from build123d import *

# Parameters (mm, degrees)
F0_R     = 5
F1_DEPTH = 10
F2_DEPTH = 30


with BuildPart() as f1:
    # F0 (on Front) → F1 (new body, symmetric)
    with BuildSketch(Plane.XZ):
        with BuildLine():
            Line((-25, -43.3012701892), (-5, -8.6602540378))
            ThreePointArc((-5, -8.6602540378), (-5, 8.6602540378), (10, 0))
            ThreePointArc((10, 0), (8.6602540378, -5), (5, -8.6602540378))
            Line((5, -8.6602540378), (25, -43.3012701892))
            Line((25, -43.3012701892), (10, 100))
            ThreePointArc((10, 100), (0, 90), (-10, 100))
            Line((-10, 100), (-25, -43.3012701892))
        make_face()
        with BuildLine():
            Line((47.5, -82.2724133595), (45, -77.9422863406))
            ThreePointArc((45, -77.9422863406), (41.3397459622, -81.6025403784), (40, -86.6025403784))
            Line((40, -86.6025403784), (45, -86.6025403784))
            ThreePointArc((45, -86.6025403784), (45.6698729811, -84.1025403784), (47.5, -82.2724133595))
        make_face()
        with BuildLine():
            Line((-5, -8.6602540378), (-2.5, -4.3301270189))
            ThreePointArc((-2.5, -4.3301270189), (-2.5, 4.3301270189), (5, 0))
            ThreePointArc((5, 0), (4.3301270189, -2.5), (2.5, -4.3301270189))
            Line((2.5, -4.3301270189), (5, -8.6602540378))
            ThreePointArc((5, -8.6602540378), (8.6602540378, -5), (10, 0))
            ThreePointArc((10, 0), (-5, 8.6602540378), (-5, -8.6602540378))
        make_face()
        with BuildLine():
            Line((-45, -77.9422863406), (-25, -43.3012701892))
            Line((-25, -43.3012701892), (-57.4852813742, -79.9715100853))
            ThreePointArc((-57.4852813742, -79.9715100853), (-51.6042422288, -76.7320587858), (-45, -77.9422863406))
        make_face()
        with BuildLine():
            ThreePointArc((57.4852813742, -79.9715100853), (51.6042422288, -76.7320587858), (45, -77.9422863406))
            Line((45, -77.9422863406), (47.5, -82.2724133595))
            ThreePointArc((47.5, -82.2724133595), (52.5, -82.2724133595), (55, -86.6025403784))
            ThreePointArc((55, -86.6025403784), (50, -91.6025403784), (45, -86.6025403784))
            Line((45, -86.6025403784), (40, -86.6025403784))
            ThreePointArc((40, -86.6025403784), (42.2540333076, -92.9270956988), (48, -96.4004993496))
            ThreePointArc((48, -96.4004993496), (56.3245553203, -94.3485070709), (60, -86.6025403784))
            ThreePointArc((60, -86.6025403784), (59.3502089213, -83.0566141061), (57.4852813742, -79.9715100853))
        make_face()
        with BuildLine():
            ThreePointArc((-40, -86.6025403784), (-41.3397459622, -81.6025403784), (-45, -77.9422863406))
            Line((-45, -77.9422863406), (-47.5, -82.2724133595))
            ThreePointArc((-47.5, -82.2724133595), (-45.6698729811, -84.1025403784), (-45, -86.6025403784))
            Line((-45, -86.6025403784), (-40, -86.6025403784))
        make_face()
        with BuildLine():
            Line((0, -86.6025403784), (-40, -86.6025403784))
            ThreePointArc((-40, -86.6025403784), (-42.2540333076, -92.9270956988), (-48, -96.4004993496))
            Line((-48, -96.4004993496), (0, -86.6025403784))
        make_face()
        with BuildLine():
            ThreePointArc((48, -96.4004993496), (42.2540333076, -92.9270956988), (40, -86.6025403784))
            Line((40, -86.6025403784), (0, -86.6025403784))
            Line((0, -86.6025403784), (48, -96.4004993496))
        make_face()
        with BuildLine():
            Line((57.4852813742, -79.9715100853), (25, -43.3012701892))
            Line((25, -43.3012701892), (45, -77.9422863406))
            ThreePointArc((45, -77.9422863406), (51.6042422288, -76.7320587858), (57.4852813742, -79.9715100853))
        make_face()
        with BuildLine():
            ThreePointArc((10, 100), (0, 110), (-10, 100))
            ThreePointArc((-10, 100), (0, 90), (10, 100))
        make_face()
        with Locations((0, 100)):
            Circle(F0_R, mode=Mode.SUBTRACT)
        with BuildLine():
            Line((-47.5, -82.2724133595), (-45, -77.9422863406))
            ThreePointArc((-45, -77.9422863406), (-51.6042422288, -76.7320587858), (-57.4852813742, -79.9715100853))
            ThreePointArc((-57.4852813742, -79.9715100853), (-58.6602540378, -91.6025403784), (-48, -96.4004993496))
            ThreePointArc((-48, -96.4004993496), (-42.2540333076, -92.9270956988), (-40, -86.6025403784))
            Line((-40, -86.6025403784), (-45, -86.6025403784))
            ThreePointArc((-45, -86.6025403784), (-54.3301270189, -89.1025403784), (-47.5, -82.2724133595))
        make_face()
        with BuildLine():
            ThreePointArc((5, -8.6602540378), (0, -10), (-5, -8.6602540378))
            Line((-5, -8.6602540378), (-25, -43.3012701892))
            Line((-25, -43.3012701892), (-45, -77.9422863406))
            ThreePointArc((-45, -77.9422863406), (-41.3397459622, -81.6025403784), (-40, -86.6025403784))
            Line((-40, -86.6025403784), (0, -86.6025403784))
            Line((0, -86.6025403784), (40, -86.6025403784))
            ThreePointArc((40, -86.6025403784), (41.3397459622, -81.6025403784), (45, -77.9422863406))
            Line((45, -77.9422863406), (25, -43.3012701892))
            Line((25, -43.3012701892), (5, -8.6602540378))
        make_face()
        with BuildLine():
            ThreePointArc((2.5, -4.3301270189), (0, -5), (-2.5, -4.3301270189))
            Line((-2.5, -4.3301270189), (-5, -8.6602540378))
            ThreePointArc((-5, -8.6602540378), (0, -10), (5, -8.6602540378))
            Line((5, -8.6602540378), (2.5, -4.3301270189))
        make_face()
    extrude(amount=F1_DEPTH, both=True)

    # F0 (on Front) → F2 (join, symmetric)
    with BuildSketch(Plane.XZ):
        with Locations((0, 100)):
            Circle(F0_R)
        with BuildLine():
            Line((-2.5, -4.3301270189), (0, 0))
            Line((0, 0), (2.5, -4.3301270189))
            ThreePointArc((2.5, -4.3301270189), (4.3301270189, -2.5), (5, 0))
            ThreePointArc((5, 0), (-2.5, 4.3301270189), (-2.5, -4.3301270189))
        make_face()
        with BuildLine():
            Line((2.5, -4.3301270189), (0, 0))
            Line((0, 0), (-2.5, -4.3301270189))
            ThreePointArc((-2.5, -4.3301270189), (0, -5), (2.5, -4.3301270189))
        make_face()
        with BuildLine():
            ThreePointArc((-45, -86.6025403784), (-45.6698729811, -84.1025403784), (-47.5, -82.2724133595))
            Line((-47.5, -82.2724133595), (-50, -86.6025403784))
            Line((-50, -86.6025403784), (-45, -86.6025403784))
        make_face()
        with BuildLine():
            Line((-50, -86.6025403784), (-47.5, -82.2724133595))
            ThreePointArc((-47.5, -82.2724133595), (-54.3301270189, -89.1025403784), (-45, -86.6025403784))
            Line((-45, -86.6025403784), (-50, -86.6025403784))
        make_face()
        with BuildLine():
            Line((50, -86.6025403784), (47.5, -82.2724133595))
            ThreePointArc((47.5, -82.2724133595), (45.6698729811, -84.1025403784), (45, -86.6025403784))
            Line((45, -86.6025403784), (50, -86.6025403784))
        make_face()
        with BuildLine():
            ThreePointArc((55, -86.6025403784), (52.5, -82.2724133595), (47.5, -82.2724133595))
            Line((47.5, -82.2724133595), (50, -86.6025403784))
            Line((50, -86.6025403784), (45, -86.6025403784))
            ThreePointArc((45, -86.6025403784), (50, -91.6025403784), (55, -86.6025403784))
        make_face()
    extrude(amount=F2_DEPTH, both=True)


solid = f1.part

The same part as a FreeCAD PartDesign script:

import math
import FreeCAD as App
import Part
import Sketcher
Q = App.Units.Quantity

doc = App.newDocument("Part")
body = doc.addObject("PartDesign::Body", "Body")

sketch1 = body.newObject("Sketcher::SketchObject", "Sketch")
sketch1.AttachmentSupport = (doc.getObject("XZ_Plane"), [""])
sketch1.MapMode = "FlatFace"
sketch1.addGeometry(Part.LineSegment(App.Vector(-10, 100, 0), App.Vector(-25, -43.30127, 0)), False)
sketch1.addGeometry(Part.LineSegment(App.Vector(-25, -43.30127, 0), App.Vector(-57.485281, -79.97151, 0)), False)
sketch1.addGeometry(Part.ArcOfCircle(Part.Circle(App.Vector(-50, -86.60254, 0), App.Vector(0, 0, 1), 10), math.radians(138.463041), math.radians(281.536959)), False)
sketch1.addGeometry(Part.LineSegment(App.Vector(-48, -96.400499, 0), App.Vector(0, -86.60254, 0)), False)
sketch1.addGeometry(Part.LineSegment(App.Vector(0, -86.60254, 0), App.Vector(48, -96.400499, 0)), False)
sketch1.addGeometry(Part.ArcOfCircle(Part.Circle(App.Vector(50, -86.60254, 0), App.Vector(0, 0, 1), 10), math.radians(-101.536959), math.radians(0)), False)
sketch1.addGeometry(Part.ArcOfCircle(Part.Circle(App.Vector(50, -86.60254, 0), App.Vector(0, 0, 1), 10), math.radians(0), math.radians(41.536959)), False)
sketch1.addGeometry(Part.LineSegment(App.Vector(57.485281, -79.97151, 0), App.Vector(25, -43.30127, 0)), False)
sketch1.addGeometry(Part.LineSegment(App.Vector(25, -43.30127, 0), App.Vector(10, 100, 0)), False)
sketch1.addGeometry(Part.ArcOfCircle(Part.Circle(App.Vector(0, 100, 0), App.Vector(0, 0, 1), 10), math.radians(0), math.radians(180)), False)
sketch1.addGeometry(Part.ArcOfCircle(Part.Circle(App.Vector(0, 0, 0), App.Vector(0, 0, 1), 5), math.radians(0), math.radians(240)), False)
sketch1.addGeometry(Part.ArcOfCircle(Part.Circle(App.Vector(0, 0, 0), App.Vector(0, 0, 1), 5), math.radians(-60), math.radians(0)), False)
sketch1.addGeometry(Part.ArcOfCircle(Part.Circle(App.Vector(0, 0, 0), App.Vector(0, 0, 1), 5), math.radians(-120), math.radians(-60)), False)
sketch1.addGeometry(Part.Circle(App.Vector(0, 100, 0), App.Vector(0, 0, 1), 5), False)
sketch1.addGeometry(Part.ArcOfCircle(Part.Circle(App.Vector(50, -86.60254, 0), App.Vector(0, 0, 1), 5), math.radians(120), math.radians(180)), False)
sketch1.addGeometry(Part.ArcOfCircle(Part.Circle(App.Vector(50, -86.60254, 0), App.Vector(0, 0, 1), 5), math.radians(0), math.radians(120)), False)
sketch1.addGeometry(Part.ArcOfCircle(Part.Circle(App.Vector(50, -86.60254, 0), App.Vector(0, 0, 1), 5), math.radians(180), math.radians(360)), False)
sketch1.addGeometry(Part.ArcOfCircle(Part.Circle(App.Vector(-50, -86.60254, 0), App.Vector(0, 0, 1), 5), math.radians(0), math.radians(60)), False)
sketch1.addGeometry(Part.ArcOfCircle(Part.Circle(App.Vector(-50, -86.60254, 0), App.Vector(0, 0, 1), 5), math.radians(60), math.radians(360)), False)
sketch1.addConstraint(Sketcher.Constraint("Coincident", 0, 2, 1, 1))
sketch1.addConstraint(Sketcher.Constraint("Tangent", 1, 2, 2, 1))
sketch1.addConstraint(Sketcher.Constraint("Tangent", 2, 2, 3, 1))
sketch1.addConstraint(Sketcher.Constraint("Coincident", 3, 2, 4, 1))
sketch1.addConstraint(Sketcher.Constraint("Tangent", 4, 2, 5, 1))
sketch1.addConstraint(Sketcher.Constraint("Tangent", 5, 2, 6, 1))
sketch1.addConstraint(Sketcher.Constraint("Tangent", 6, 2, 7, 1))
sketch1.addConstraint(Sketcher.Constraint("Coincident", 7, 2, 8, 1))
sketch1.addConstraint(Sketcher.Constraint("Coincident", 8, 2, 9, 1))
sketch1.addConstraint(Sketcher.Constraint("Coincident", 9, 2, 0, 1))
sketch1.addConstraint(Sketcher.Constraint("Tangent", 10, 1, 11, 2))
sketch1.addConstraint(Sketcher.Constraint("Tangent", 11, 1, 12, 2))
sketch1.addConstraint(Sketcher.Constraint("Tangent", 12, 1, 10, 2))
sketch1.addConstraint(Sketcher.Constraint("Tangent", 14, 1, 15, 2))
sketch1.addConstraint(Sketcher.Constraint("Tangent", 15, 1, 16, 2))
sketch1.addConstraint(Sketcher.Constraint("Tangent", 16, 1, 14, 2))
sketch1.addConstraint(Sketcher.Constraint("Tangent", 17, 1, 18, 2))
sketch1.addConstraint(Sketcher.Constraint("Coincident", 18, 1, 17, 2))
sketch1.addConstraint(Sketcher.Constraint("Coincident", 10, 3, -1, 1))
sketch1.addConstraint(Sketcher.Constraint("Coincident", 13, 3, 9, 3))
sketch1.addConstraint(Sketcher.Constraint("Coincident", 14, 3, 5, 3))
sketch1.addConstraint(Sketcher.Constraint("Coincident", 17, 3, 2, 3))
sketch1.addConstraint(Sketcher.Constraint("Equal", 2, 5))
sketch1.addConstraint(Sketcher.Constraint("Equal", 5, 6))
sketch1.addConstraint(Sketcher.Constraint("Equal", 6, 9))
sketch1.addConstraint(Sketcher.Constraint("Equal", 12, 13))
sketch1.addConstraint(Sketcher.Constraint("Equal", 13, 14))
sketch1.addConstraint(Sketcher.Constraint("Equal", 16, 17))
sketch1.addConstraint(Sketcher.Constraint("Symmetric", 2, 3, 5, 3, -2))
sketch1.addConstraint(Sketcher.Constraint("Symmetric", 0, 2, 7, 2, -2))
sketch1.addConstraint(Sketcher.Constraint("Symmetric", 8, 2, 9, 2, -2))
sketch1.addConstraint(Sketcher.Constraint("PointOnObject", 3, 2, -2))
sketch1.addConstraint(Sketcher.Constraint("PointOnObject", 10, 1, -1))
sketch1.addConstraint(Sketcher.Constraint("Horizontal", 18, 3, 3, 2))
sketch1.addConstraint(Sketcher.Constraint("Horizontal", 3, 2, 5, 2))
sketch1.addConstraint(Sketcher.Constraint("Horizontal", 13, 3, 8, 2))
sketch1.addConstraint(Sketcher.Constraint("Horizontal", 11, 1, 12, 1))
sketch1.addConstraint(Sketcher.Constraint("Horizontal", 5, 2, 15, 1))
sketch1.addConstraint(Sketcher.Constraint("Horizontal", 15, 1, 16, 1))
sketch1.addConstraint(Sketcher.Constraint("Horizontal", 16, 1, 17, 1))
sketch1.addConstraint(Sketcher.Constraint("Horizontal", 14, 1, 18, 1))
sketch1.addConstraint(Sketcher.Constraint("Equal", 1, 3))
sketch1.addConstraint(Sketcher.Constraint("Diameter", 13, Q("10 mm")))
sketch1.addConstraint(Sketcher.Constraint("Radius", 2, Q("10 mm")))
sketch1.addConstraint(Sketcher.Constraint("DistanceX", 2, 3, -1, 1, Q("50 mm")))
sketch1.addConstraint(Sketcher.Constraint("DistanceY", -1, 1, 9, 3, Q("100 mm")))
sketch1.addConstraint(Sketcher.Constraint("DistanceX", 0, 2, -1, 1, Q("25 mm")))
sketch1.addConstraint(Sketcher.Constraint("DistanceX", 12, 1, 11, 1, Q("5 mm")))
sketch1.addConstraint(Sketcher.Constraint("DistanceX", -1, 1, 14, 1, Q("47.5 mm")))
sketch1.addConstraint(Sketcher.Constraint("DistanceY", 2, 2, -1, 1, Q("96.400499 mm")))
pad1 = body.newObject("PartDesign::Pad", "Pad")
pad1.Profile = sketch1
pad1.Length = 20
pad1.Midplane = True

sketch2 = body.newObject("Sketcher::SketchObject", "Sketch001")
sketch2.AttachmentSupport = (doc.getObject("XZ_Plane"), [""])
sketch2.MapMode = "FlatFace"
sketch2.addGeometry(Part.Circle(App.Vector(0, 100, 0), App.Vector(0, 0, 1), 5), False)
sketch2.addGeometry(Part.ArcOfCircle(Part.Circle(App.Vector(0, 0, 0), App.Vector(0, 0, 1), 5), math.radians(-60), math.radians(0)), False)
sketch2.addGeometry(Part.ArcOfCircle(Part.Circle(App.Vector(0, 0, 0), App.Vector(0, 0, 1), 5), math.radians(0), math.radians(240)), False)
sketch2.addGeometry(Part.ArcOfCircle(Part.Circle(App.Vector(0, 0, 0), App.Vector(0, 0, 1), 5), math.radians(-120), math.radians(-60)), False)
sketch2.addGeometry(Part.ArcOfCircle(Part.Circle(App.Vector(-50, -86.60254, 0), App.Vector(0, 0, 1), 5), math.radians(0), math.radians(60)), False)
sketch2.addGeometry(Part.ArcOfCircle(Part.Circle(App.Vector(-50, -86.60254, 0), App.Vector(0, 0, 1), 5), math.radians(60), math.radians(360)), False)
sketch2.addGeometry(Part.ArcOfCircle(Part.Circle(App.Vector(50, -86.60254, 0), App.Vector(0, 0, 1), 5), math.radians(120), math.radians(180)), False)
sketch2.addGeometry(Part.ArcOfCircle(Part.Circle(App.Vector(50, -86.60254, 0), App.Vector(0, 0, 1), 5), math.radians(180), math.radians(360)), False)
sketch2.addGeometry(Part.ArcOfCircle(Part.Circle(App.Vector(50, -86.60254, 0), App.Vector(0, 0, 1), 5), math.radians(0), math.radians(120)), False)
sketch2.addConstraint(Sketcher.Constraint("Tangent", 1, 2, 2, 1))
sketch2.addConstraint(Sketcher.Constraint("Tangent", 2, 2, 3, 1))
sketch2.addConstraint(Sketcher.Constraint("Tangent", 3, 2, 1, 1))
sketch2.addConstraint(Sketcher.Constraint("Tangent", 4, 1, 5, 2))
sketch2.addConstraint(Sketcher.Constraint("Coincident", 5, 1, 4, 2))
sketch2.addConstraint(Sketcher.Constraint("Tangent", 6, 2, 7, 1))
sketch2.addConstraint(Sketcher.Constraint("Tangent", 7, 2, 8, 1))
sketch2.addConstraint(Sketcher.Constraint("Tangent", 8, 2, 6, 1))
sketch2.addConstraint(Sketcher.Constraint("Coincident", 1, 3, -1, 1))
sketch2.addConstraint(Sketcher.Constraint("Equal", 0, 1))
sketch2.addConstraint(Sketcher.Constraint("Equal", 3, 4))
sketch2.addConstraint(Sketcher.Constraint("Equal", 5, 6))
sketch2.addConstraint(Sketcher.Constraint("Symmetric", 4, 3, 6, 3, -2))
sketch2.addConstraint(Sketcher.Constraint("PointOnObject", 0, 3, -2))
sketch2.addConstraint(Sketcher.Constraint("PointOnObject", 1, 2, -1))
sketch2.addConstraint(Sketcher.Constraint("Horizontal", 2, 2, 3, 2))
sketch2.addConstraint(Sketcher.Constraint("Horizontal", 8, 3, 4, 1))
sketch2.addConstraint(Sketcher.Constraint("Horizontal", 4, 1, 6, 2))
sketch2.addConstraint(Sketcher.Constraint("Horizontal", 6, 2, 7, 2))
sketch2.addConstraint(Sketcher.Constraint("Horizontal", 5, 1, 8, 2))
sketch2.addConstraint(Sketcher.Constraint("Diameter", 0, Q("10 mm")))
sketch2.addConstraint(Sketcher.Constraint("DistanceY", -1, 1, 0, 3, Q("100 mm")))
sketch2.addConstraint(Sketcher.Constraint("DistanceX", 4, 3, -1, 1, Q("50 mm")))
sketch2.addConstraint(Sketcher.Constraint("DistanceX", 2, 2, 3, 2, Q("5 mm")))
sketch2.addConstraint(Sketcher.Constraint("DistanceX", 5, 1, 2, 2, Q("45 mm")))
sketch2.addConstraint(Sketcher.Constraint("DistanceY", 4, 3, -1, 1, Q("86.60254 mm")))
pad2 = body.newObject("PartDesign::Pad", "Pad001")
pad2.Profile = sketch2
pad2.Length = 60
pad2.Midplane = True

doc.recompute()
